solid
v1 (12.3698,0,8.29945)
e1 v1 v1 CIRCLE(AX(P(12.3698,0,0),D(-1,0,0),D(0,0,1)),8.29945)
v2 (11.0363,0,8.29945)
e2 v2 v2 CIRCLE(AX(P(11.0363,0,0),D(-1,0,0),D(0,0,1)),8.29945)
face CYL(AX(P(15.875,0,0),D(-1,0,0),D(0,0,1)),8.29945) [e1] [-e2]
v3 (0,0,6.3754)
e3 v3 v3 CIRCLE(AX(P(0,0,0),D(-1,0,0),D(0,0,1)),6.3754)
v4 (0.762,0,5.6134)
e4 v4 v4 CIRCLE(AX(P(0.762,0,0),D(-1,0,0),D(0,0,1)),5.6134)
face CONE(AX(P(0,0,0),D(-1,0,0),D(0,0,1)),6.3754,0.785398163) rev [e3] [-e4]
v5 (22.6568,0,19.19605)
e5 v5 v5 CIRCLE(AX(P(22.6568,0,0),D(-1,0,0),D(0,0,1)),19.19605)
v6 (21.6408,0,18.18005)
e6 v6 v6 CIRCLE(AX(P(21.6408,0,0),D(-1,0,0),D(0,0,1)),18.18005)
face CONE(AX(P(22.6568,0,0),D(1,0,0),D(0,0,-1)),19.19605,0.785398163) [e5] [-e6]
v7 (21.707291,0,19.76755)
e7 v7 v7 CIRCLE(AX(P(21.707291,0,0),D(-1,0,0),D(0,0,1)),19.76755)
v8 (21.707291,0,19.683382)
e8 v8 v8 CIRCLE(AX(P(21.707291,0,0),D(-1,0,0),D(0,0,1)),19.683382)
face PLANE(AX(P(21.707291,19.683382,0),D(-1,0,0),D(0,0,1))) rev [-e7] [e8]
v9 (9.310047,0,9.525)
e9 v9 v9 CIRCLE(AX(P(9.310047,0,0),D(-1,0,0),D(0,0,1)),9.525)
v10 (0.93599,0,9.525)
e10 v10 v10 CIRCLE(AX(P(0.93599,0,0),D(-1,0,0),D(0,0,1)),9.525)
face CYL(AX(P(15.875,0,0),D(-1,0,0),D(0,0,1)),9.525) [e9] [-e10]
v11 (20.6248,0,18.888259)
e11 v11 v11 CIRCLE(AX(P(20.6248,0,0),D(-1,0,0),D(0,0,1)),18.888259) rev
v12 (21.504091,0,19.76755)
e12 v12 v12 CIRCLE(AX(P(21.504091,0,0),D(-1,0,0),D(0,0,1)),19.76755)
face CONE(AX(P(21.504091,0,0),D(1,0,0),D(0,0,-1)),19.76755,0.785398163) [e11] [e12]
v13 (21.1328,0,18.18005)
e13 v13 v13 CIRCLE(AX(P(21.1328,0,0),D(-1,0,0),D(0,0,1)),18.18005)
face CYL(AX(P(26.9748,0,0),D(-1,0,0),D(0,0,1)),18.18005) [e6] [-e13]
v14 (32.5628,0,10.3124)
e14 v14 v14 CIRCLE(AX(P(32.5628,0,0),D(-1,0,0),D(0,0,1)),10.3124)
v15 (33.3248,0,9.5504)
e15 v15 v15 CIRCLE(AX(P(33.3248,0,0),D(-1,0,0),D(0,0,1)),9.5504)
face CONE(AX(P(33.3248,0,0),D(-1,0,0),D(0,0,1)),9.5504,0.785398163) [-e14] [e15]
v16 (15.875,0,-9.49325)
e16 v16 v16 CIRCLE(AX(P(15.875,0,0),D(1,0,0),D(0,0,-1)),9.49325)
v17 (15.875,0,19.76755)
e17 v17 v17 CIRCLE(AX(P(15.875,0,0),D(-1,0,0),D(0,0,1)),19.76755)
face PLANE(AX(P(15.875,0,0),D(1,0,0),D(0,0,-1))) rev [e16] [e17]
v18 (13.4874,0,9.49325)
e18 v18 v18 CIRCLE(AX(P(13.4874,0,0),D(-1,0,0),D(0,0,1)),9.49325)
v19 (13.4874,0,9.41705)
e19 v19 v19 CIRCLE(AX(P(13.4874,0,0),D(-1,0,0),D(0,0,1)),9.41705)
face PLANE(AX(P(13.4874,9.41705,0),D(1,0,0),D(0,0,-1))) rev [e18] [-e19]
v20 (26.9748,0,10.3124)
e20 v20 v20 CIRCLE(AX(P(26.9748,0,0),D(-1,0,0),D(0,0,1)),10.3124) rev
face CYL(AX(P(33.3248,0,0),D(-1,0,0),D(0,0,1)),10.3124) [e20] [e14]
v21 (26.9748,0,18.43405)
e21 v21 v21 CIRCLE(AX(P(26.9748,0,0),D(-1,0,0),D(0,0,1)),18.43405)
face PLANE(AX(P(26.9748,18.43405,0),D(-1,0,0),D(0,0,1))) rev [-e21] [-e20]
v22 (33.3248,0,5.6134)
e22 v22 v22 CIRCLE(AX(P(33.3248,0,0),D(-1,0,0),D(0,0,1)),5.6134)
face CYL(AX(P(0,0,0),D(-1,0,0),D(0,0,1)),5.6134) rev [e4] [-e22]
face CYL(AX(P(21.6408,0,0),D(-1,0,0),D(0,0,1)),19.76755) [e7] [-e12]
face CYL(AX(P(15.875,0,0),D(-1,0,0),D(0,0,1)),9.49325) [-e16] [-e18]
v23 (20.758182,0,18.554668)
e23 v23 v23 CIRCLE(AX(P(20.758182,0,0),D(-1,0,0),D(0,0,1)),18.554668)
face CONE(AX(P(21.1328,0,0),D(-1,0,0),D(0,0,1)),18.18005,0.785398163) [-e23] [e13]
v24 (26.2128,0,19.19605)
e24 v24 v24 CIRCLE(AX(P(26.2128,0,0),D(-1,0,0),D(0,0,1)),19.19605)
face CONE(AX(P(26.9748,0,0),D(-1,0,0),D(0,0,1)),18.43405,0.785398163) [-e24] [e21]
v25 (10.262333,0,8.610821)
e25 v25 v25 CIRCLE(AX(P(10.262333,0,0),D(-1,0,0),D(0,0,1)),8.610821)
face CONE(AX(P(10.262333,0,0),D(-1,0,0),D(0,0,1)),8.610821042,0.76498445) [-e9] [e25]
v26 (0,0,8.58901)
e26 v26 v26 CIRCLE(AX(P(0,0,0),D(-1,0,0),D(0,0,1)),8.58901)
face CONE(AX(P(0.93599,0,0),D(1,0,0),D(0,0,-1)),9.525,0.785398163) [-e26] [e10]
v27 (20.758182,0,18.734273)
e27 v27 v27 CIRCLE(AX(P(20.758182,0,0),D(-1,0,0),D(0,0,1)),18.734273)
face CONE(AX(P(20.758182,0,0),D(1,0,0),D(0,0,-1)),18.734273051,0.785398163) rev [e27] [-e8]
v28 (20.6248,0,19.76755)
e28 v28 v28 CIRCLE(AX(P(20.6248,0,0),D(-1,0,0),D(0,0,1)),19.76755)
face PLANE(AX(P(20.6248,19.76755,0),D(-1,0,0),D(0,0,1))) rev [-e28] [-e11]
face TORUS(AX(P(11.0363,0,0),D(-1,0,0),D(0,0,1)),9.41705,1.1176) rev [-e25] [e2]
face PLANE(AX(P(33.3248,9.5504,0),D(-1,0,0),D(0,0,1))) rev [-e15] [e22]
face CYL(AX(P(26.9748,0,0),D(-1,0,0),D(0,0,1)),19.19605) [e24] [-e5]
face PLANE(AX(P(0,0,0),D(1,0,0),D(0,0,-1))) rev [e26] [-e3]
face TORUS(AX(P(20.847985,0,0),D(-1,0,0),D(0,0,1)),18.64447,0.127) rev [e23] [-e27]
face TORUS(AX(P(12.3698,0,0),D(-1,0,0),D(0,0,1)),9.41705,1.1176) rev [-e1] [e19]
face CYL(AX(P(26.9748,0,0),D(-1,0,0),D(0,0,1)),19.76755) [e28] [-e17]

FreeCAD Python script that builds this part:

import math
import FreeCAD as App
import Part
import Sketcher
Q = App.Units.Quantity


def add_polygon(sketch, points):
    """Adds a closed chain of lines whose ends are joined by coincident constraints."""
    first, n = sketch.GeometryCount, len(points)
    for a, b in zip(points, points[1:] + points[:1]):
        sketch.addGeometry(Part.LineSegment(App.Vector(*a, 0), App.Vector(*b, 0)), False)
    for i in range(n):
        sketch.addConstraint(Sketcher.Constraint("Coincident", first + i, 2, first + (i + 1) % n, 1))

doc = App.newDocument("Part")
params = doc.addObject("Spreadsheet::Sheet", "Params")
for row, (alias, value) in enumerate([
    ("sketch1_radius", "0.044 in"),
    ("sketch1_width", "0.625 in"),
    ("sketch1_width2", "0.094 in"),
    ("sketch1_height", "0.003 in"),
    ("revolution_angle", "360 deg"),
    ("sketch2_width", "0.14 in"),
    ("sketch2_width2", "0.04 in"),
    ("sketch2_width3", "0.437 in"),
    ("sketch2_width4", "0.187 in"),
    ("sketch2_height", "0.0625 in"),
    ("revolution2_angle", "360 deg"),
    ("sketch3_width", "0.25 in"),
    ("sketch3_width2", "0.22 in"),
    ("sketch3_height", "0.406 in"),
    ("revolution3_angle", "360 deg"),
    ("sketch4_diameter", "0.442 in"),
    ("hole_diameter", "0.442 in"),
    ("hole_depth", "1.312 in"),
    ("hole_csink_diameter", "0.502 in"),
    ("sketch5_radius", "0.005 in"),
    ("sketch5_width", "0.04 in"),
    ("sketch5_width2", "0.02 in"),
    ("sketch5_height", "0.01 in"),
    ("sketch5_width3", "0.008 in"),
    ("revolution4_angle", "360 deg"),
], start=1):
    params.set(f"A{row}", alias)
    params.set(f"B{row}", "=" + value)
    params.setAlias(f"B{row}", alias)

body = doc.addObject("PartDesign::Body", "Body")

# Sketch on XY plane
sketch1 = body.newObject("Sketcher::SketchObject", "Sketch")
sketch1.AttachmentSupport = (doc.getObject("XY_Plane"), [""])
sketch1.MapMode = "FlatFace"
sketch1.addGeometry(Part.LineSegment(App.Vector(0, 8.58901, 0), App.Vector(0, 0, 0)), False)
sketch1.addGeometry(Part.LineSegment(App.Vector(0, 0, 0), App.Vector(15.875, 0, 0)), False)
sketch1.addGeometry(Part.LineSegment(App.Vector(15.875, 0, 0), App.Vector(15.875, 9.49325, 0)), False)
sketch1.addGeometry(Part.LineSegment(App.Vector(15.875, 9.49325, 0), App.Vector(13.4874, 9.49325, 0)), False)
sketch1.addGeometry(Part.LineSegment(App.Vector(13.4874, 9.49325, 0), App.Vector(13.4874, 9.41705, 0)), False)
sketch1.addGeometry(Part.ArcOfCircle(Part.Circle(App.Vector(12.3698, 9.41705, 0), App.Vector(0, 0, 1), 1.1176), math.radians(-90), math.radians(0)), False)
sketch1.addGeometry(Part.LineSegment(App.Vector(12.3698, 8.29945, 0), App.Vector(11.0363, 8.29945, 0)), False)
sketch1.addGeometry(Part.ArcOfCircle(Part.Circle(App.Vector(11.0363, 9.41705, 0), App.Vector(0, 0, 1), 1.1176), math.radians(-133.83038), math.radians(-90)), False)
sketch1.addGeometry(Part.LineSegment(App.Vector(10.262333, 8.610821, 0), App.Vector(9.310047, 9.525, 0)), False)
sketch1.addGeometry(Part.LineSegment(App.Vector(9.310047, 9.525, 0), App.Vector(0.93599, 9.525, 0)), False)
sketch1.addGeometry(Part.LineSegment(App.Vector(0.93599, 9.525, 0), App.Vector(0, 8.58901, 0)), False)
sketch1.addConstraint(Sketcher.Constraint("Coincident", 0, 2, 1, 1))
sketch1.addConstraint(Sketcher.Constraint("Coincident", 1, 2, 2, 1))
sketch1.addConstraint(Sketcher.Constraint("Coincident", 2, 2, 3, 1))
sketch1.addConstraint(Sketcher.Constraint("Coincident", 3, 2, 4, 1))
sketch1.addConstraint(Sketcher.Constraint("Tangent", 4, 2, 5, 2))
sketch1.addConstraint(Sketcher.Constraint("Tangent", 5, 1, 6, 1))
sketch1.addConstraint(Sketcher.Constraint("Tangent", 6, 2, 7, 2))
sketch1.addConstraint(Sketcher.Constraint("Tangent", 7, 1, 8, 1))
sketch1.addConstraint(Sketcher.Constraint("Coincident", 8, 2, 9, 1))
sketch1.addConstraint(Sketcher.Constraint("Coincident", 9, 2, 10, 1))
sketch1.addConstraint(Sketcher.Constraint("Coincident", 10, 2, 0, 1))
sketch1.addConstraint(Sketcher.Constraint("Vertical", 0))
sketch1.addConstraint(Sketcher.Constraint("Horizontal", 1))
sketch1.addConstraint(Sketcher.Constraint("Vertical", 2))
sketch1.addConstraint(Sketcher.Constraint("Horizontal", 3))
sketch1.addConstraint(Sketcher.Constraint("Vertical", 4))
sketch1.addConstraint(Sketcher.Constraint("Horizontal", 6))
sketch1.addConstraint(Sketcher.Constraint("Horizontal", 9))
sketch1.addConstraint(Sketcher.Constraint("Coincident", 0, 2, -1, 1))
sketch1.addConstraint(Sketcher.Constraint("Equal", 5, 7))
sketch1.addConstraint(Sketcher.Constraint("Angle", 10, Q("-135 deg")))
sketch1.addConstraint(Sketcher.Constraint("Radius", 5, Q("0.044 in")))
sketch1.addConstraint(Sketcher.Constraint("DistanceX", 1, 1, 1, 2, Q("0.625 in")))
sketch1.addConstraint(Sketcher.Constraint("DistanceX", 3, 2, 3, 1, Q("0.094 in")))
sketch1.addConstraint(Sketcher.Constraint("DistanceY", 4, 2, 4, 1, Q("0.003 in")))
sketch1.addConstraint(Sketcher.Constraint("DistanceX", 6, 2, 6, 1, Q("0.0525 in")))
sketch1.addConstraint(Sketcher.Constraint("DistanceY", -1, 1, 8, 2, Q("0.375 in")))
sketch1.addConstraint(Sketcher.Constraint("DistanceY", 6, 2, 10, 2, Q("0.0114 in")))
sketch1.addConstraint(Sketcher.Constraint("DistanceY", 0, 2, 0, 1, Q("8.58901 mm")))
sketch1.addConstraint(Sketcher.Constraint("DistanceX", 9, 2, 9, 1, Q("8.374057 mm")))
sketch1.setExpression("Constraints[21]", "Params.sketch1_radius")
sketch1.setExpression("Constraints[22]", "Params.sketch1_width")
sketch1.setExpression("Constraints[23]", "Params.sketch1_width2")
sketch1.setExpression("Constraints[24]", "Params.sketch1_height")
revolution = body.newObject("PartDesign::Revolution", "Revolution")
revolution.Profile = sketch1
revolution.ReferenceAxis = (sketch1, ["H_Axis"])
revolution.setExpression("Angle", "Params.revolution_angle")

# Sketch on XY plane
sketch2 = body.newObject("Sketcher::SketchObject", "Sketch001")
sketch2.AttachmentSupport = (doc.getObject("XY_Plane"), [""])
sketch2.MapMode = "FlatFace"
add_polygon(sketch2, [(15.875, 19.76755), (15.875, 0), (26.9748, 0), (26.9748, 18.43405), (26.2128, 19.19605), (22.6568, 19.19605), (21.6408, 18.18005), (20.6248, 18.18005), (20.6248, 19.76755)])  # lines 0-8
sketch2.addConstraint(Sketcher.Constraint("Vertical", 0))
sketch2.addConstraint(Sketcher.Constraint("Horizontal", 1))
sketch2.addConstraint(Sketcher.Constraint("Vertical", 2))
sketch2.addConstraint(Sketcher.Constraint("Horizontal", 4))
sketch2.addConstraint(Sketcher.Constraint("Horizontal", 6))
sketch2.addConstraint(Sketcher.Constraint("Vertical", 7))
sketch2.addConstraint(Sketcher.Constraint("Horizontal", 8))
sketch2.addConstraint(Sketcher.Constraint("PointOnObject", 0, 2, -1))
sketch2.addConstraint(Sketcher.Constraint("Perpendicular", 3, 5))
sketch2.addConstraint(Sketcher.Constraint("Angle", 3, Q("135 deg")))
sketch2.addConstraint(Sketcher.Constraint("DistanceX", 4, 2, 4, 1, Q("0.14 in")))
sketch2.addConstraint(Sketcher.Constraint("DistanceX", 6, 2, 6, 1, Q("0.04 in")))
sketch2.addConstraint(Sketcher.Constraint("DistanceX", 1, 1, 1, 2, Q("0.437 in")))
sketch2.addConstraint(Sketcher.Constraint("DistanceX", 8, 2, 8, 1, Q("0.187 in")))
sketch2.addConstraint(Sketcher.Constraint("DistanceY", 7, 1, 7, 2, Q("0.0625 in")))
sketch2.addConstraint(Sketcher.Constraint("DistanceX", 3, 2, 2, 2, Q("0.03 in")))
sketch2.addConstraint(Sketcher.Constraint("DistanceX", -1, 1, 0, 2, Q("0.625 in")))
sketch2.addConstraint(Sketcher.Constraint("DistanceY", 0, 2, 0, 1, Q("19.76755 mm")))
sketch2.setExpression("Constraints[19]", "Params.sketch2_width")
sketch2.setExpression("Constraints[20]", "Params.sketch2_width2")
sketch2.setExpression("Constraints[21]", "Params.sketch2_width3")
sketch2.setExpression("Constraints[22]", "Params.sketch2_width4")
sketch2.setExpression("Constraints[23]", "Params.sketch2_height")
revolution2 = body.newObject("PartDesign::Revolution", "Revolution001")
revolution2.Profile = sketch2
revolution2.ReferenceAxis = (sketch2, ["H_Axis"])
revolution2.setExpression("Angle", "Params.revolution2_angle")

# Sketch on XY plane
sketch3 = body.newObject("Sketcher::SketchObject", "Sketch002")
sketch3.AttachmentSupport = (doc.getObject("XY_Plane"), [""])
sketch3.MapMode = "FlatFace"
add_polygon(sketch3, [(26.9748, 10.3124), (26.9748, 0), (33.3248, 0), (33.3248, 9.5504), (32.5628, 10.3124)])  # lines 0-4
sketch3.addConstraint(Sketcher.Constraint("Vertical", 0))
sketch3.addConstraint(Sketcher.Constraint("Horizontal", 1))
sketch3.addConstraint(Sketcher.Constraint("Vertical", 2))
sketch3.addConstraint(Sketcher.Constraint("Horizontal", 4))
sketch3.addConstraint(Sketcher.Constraint("PointOnObject", 0, 2, -1))
sketch3.addConstraint(Sketcher.Constraint("Angle", 3, Q("135 deg")))
sketch3.addConstraint(Sketcher.Constraint("DistanceX", 1, 1, 1, 2, Q("0.25 in")))
sketch3.addConstraint(Sketcher.Constraint("DistanceX", 4, 2, 4, 1, Q("0.22 in")))
sketch3.addConstraint(Sketcher.Constraint("DistanceY", 0, 2, 0, 1, Q("0.406 in")))
sketch3.addConstraint(Sketcher.Constraint("DistanceX", -1, 1, 0, 2, Q("1.062 in")))
sketch3.setExpression("Constraints[11]", "Params.sketch3_width")
sketch3.setExpression("Constraints[12]", "Params.sketch3_width2")
sketch3.setExpression("Constraints[13]", "Params.sketch3_height")
revolution3 = body.newObject("PartDesign::Revolution", "Revolution002")
revolution3.Profile = sketch3
revolution3.ReferenceAxis = (sketch3, ["H_Axis"])
revolution3.setExpression("Angle", "Params.revolution3_angle")

# Sketch on YZ plane
sketch4 = body.newObject("Sketcher::SketchObject", "Sketch003")
sketch4.AttachmentSupport = (doc.getObject("YZ_Plane"), [""])
sketch4.MapMode = "FlatFace"
sketch4.addGeometry(Part.Circle(App.Vector(0, 0, 0), App.Vector(0, 0, 1), 5.6134), False)
sketch4.addConstraint(Sketcher.Constraint("Coincident", 0, 3, -1, 1))
sketch4.addConstraint(Sketcher.Constraint("Diameter", 0, Q("0.442 in")))
sketch4.setExpression("Constraints[1]", "Params.sketch4_diameter")
doc.recompute()
hole = body.newObject("PartDesign::Hole", "Hole")
hole.Profile = sketch4
hole.ThreadType = "None"
hole.setExpression("Diameter", "Params.hole_diameter")
hole.DepthType = "Dimension"
hole.setExpression("Depth", "Params.hole_depth")
hole.DrillPoint = "Flat"
hole.HoleCutType = "Countersink"
hole.setExpression("HoleCutDiameter", "Params.hole_csink_diameter")
hole.HoleCutCountersinkAngle = 90
hole.Reversed = True

# Sketch on XY plane
sketch5 = body.newObject("Sketcher::SketchObject", "Sketch004")
sketch5.AttachmentSupport = (doc.getObject("XY_Plane"), [""])
sketch5.MapMode = "FlatFace"
sketch5.addGeometry(Part.LineSegment(App.Vector(20.6248, 17.92605, 0), App.Vector(21.6408, 17.92605, 0)), False)
sketch5.addGeometry(Part.LineSegment(App.Vector(21.6408, 17.92605, 0), App.Vector(21.6408, 18.18005, 0)), False)
sketch5.addGeometry(Part.LineSegment(App.Vector(21.6408, 18.18005, 0), App.Vector(21.1328, 18.18005, 0)), False)
sketch5.addGeometry(Part.LineSegment(App.Vector(21.1328, 18.18005, 0), App.Vector(20.758182, 18.554668, 0)), False)
sketch5.addGeometry(Part.ArcOfCircle(Part.Circle(App.Vector(20.847985, 18.64447, 0), App.Vector(0, 0, 1), 0.127), math.radians(135), math.radians(225)), False)
sketch5.addGeometry(Part.LineSegment(App.Vector(20.758182, 18.734273, 0), App.Vector(21.707291, 19.683382, 0)), False)
sketch5.addGeometry(Part.LineSegment(App.Vector(21.707291, 19.683382, 0), App.Vector(21.707291, 19.76755, 0)), False)
sketch5.addGeometry(Part.LineSegment(App.Vector(21.707291, 19.76755, 0), App.Vector(21.504091, 19.76755, 0)), False)
sketch5.addGeometry(Part.LineSegment(App.Vector(21.504091, 19.76755, 0), App.Vector(20.6248, 18.888259, 0)), False)
sketch5.addGeometry(Part.LineSegment(App.Vector(20.6248, 18.888259, 0), App.Vector(20.6248, 17.92605, 0)), False)
sketch5.addConstraint(Sketcher.Constraint("Coincident", 0, 2, 1, 1))
sketch5.addConstraint(Sketcher.Constraint("Coincident", 1, 2, 2, 1))
sketch5.addConstraint(Sketcher.Constraint("Coincident", 2, 2, 3, 1))
sketch5.addConstraint(Sketcher.Constraint("Tangent", 3, 2, 4, 2))
sketch5.addConstraint(Sketcher.Constraint("Tangent", 4, 1, 5, 1))
sketch5.addConstraint(Sketcher.Constraint("Coincident", 5, 2, 6, 1))
sketch5.addConstraint(Sketcher.Constraint("Coincident", 6, 2, 7, 1))
sketch5.addConstraint(Sketcher.Constraint("Coincident", 7, 2, 8, 1))
sketch5.addConstraint(Sketcher.Constraint("Coincident", 8, 2, 9, 1))
sketch5.addConstraint(Sketcher.Constraint("Coincident", 9, 2, 0, 1))
sketch5.addConstraint(Sketcher.Constraint("Horizontal", 0))
sketch5.addConstraint(Sketcher.Constraint("Vertical", 1))
sketch5.addConstraint(Sketcher.Constraint("Horizontal", 2))
sketch5.addConstraint(Sketcher.Constraint("Vertical", 6))
sketch5.addConstraint(Sketcher.Constraint("Horizontal", 7))
sketch5.addConstraint(Sketcher.Constraint("Vertical", 9))
sketch5.addConstraint(Sketcher.Constraint("Perpendicular", 3, 5))
sketch5.addConstraint(Sketcher.Constraint("Parallel", 5, 8))
sketch5.addConstraint(Sketcher.Constraint("Vertical", 3, 2, 4, 1))
sketch5.addConstraint(Sketcher.Constraint("Radius", 4, Q("0.005 in")))
sketch5.addConstraint(Sketcher.Constraint("DistanceX", 0, 1, 0, 2, Q("0.04 in")))
sketch5.addConstraint(Sketcher.Constraint("DistanceX", 2, 2, 2, 1, Q("0.02 in")))
sketch5.addConstraint(Sketcher.Constraint("DistanceY", 1, 1, 1, 2, Q("0.01 in")))
sketch5.addConstraint(Sketcher.Constraint("DistanceX", 7, 2, 7, 1, Q("0.008 in")))
sketch5.addConstraint(Sketcher.Constraint("DistanceX", -1, 1, 0, 2, Q("0.852 in")))
sketch5.addConstraint(Sketcher.Constraint("DistanceY", 1, 2, 6, 2, Q("0.0625 in")))
sketch5.addConstraint(Sketcher.Constraint("DistanceY", 6, 1, 6, 2, Q("0.084168 mm")))
sketch5.addConstraint(Sketcher.Constraint("DistanceY", 9, 2, 9, 1, Q("0.962209 mm")))
sketch5.addConstraint(Sketcher.Constraint("DistanceY", -1, 1, 4, 3, Q("18.64447 mm")))
sketch5.setExpression("Constraints[19]", "Params.sketch5_radius")
sketch5.setExpression("Constraints[20]", "Params.sketch5_width")
sketch5.setExpression("Constraints[21]", "Params.sketch5_width2")
sketch5.setExpression("Constraints[22]", "Params.sketch5_height")
sketch5.setExpression("Constraints[23]", "Params.sketch5_width3")
revolution4 = body.newObject("PartDesign::Revolution", "Revolution003")
revolution4.Profile = sketch5
revolution4.ReferenceAxis = (sketch5, ["H_Axis"])
revolution4.setExpression("Angle", "Params.revolution4_angle")

doc.recompute()
